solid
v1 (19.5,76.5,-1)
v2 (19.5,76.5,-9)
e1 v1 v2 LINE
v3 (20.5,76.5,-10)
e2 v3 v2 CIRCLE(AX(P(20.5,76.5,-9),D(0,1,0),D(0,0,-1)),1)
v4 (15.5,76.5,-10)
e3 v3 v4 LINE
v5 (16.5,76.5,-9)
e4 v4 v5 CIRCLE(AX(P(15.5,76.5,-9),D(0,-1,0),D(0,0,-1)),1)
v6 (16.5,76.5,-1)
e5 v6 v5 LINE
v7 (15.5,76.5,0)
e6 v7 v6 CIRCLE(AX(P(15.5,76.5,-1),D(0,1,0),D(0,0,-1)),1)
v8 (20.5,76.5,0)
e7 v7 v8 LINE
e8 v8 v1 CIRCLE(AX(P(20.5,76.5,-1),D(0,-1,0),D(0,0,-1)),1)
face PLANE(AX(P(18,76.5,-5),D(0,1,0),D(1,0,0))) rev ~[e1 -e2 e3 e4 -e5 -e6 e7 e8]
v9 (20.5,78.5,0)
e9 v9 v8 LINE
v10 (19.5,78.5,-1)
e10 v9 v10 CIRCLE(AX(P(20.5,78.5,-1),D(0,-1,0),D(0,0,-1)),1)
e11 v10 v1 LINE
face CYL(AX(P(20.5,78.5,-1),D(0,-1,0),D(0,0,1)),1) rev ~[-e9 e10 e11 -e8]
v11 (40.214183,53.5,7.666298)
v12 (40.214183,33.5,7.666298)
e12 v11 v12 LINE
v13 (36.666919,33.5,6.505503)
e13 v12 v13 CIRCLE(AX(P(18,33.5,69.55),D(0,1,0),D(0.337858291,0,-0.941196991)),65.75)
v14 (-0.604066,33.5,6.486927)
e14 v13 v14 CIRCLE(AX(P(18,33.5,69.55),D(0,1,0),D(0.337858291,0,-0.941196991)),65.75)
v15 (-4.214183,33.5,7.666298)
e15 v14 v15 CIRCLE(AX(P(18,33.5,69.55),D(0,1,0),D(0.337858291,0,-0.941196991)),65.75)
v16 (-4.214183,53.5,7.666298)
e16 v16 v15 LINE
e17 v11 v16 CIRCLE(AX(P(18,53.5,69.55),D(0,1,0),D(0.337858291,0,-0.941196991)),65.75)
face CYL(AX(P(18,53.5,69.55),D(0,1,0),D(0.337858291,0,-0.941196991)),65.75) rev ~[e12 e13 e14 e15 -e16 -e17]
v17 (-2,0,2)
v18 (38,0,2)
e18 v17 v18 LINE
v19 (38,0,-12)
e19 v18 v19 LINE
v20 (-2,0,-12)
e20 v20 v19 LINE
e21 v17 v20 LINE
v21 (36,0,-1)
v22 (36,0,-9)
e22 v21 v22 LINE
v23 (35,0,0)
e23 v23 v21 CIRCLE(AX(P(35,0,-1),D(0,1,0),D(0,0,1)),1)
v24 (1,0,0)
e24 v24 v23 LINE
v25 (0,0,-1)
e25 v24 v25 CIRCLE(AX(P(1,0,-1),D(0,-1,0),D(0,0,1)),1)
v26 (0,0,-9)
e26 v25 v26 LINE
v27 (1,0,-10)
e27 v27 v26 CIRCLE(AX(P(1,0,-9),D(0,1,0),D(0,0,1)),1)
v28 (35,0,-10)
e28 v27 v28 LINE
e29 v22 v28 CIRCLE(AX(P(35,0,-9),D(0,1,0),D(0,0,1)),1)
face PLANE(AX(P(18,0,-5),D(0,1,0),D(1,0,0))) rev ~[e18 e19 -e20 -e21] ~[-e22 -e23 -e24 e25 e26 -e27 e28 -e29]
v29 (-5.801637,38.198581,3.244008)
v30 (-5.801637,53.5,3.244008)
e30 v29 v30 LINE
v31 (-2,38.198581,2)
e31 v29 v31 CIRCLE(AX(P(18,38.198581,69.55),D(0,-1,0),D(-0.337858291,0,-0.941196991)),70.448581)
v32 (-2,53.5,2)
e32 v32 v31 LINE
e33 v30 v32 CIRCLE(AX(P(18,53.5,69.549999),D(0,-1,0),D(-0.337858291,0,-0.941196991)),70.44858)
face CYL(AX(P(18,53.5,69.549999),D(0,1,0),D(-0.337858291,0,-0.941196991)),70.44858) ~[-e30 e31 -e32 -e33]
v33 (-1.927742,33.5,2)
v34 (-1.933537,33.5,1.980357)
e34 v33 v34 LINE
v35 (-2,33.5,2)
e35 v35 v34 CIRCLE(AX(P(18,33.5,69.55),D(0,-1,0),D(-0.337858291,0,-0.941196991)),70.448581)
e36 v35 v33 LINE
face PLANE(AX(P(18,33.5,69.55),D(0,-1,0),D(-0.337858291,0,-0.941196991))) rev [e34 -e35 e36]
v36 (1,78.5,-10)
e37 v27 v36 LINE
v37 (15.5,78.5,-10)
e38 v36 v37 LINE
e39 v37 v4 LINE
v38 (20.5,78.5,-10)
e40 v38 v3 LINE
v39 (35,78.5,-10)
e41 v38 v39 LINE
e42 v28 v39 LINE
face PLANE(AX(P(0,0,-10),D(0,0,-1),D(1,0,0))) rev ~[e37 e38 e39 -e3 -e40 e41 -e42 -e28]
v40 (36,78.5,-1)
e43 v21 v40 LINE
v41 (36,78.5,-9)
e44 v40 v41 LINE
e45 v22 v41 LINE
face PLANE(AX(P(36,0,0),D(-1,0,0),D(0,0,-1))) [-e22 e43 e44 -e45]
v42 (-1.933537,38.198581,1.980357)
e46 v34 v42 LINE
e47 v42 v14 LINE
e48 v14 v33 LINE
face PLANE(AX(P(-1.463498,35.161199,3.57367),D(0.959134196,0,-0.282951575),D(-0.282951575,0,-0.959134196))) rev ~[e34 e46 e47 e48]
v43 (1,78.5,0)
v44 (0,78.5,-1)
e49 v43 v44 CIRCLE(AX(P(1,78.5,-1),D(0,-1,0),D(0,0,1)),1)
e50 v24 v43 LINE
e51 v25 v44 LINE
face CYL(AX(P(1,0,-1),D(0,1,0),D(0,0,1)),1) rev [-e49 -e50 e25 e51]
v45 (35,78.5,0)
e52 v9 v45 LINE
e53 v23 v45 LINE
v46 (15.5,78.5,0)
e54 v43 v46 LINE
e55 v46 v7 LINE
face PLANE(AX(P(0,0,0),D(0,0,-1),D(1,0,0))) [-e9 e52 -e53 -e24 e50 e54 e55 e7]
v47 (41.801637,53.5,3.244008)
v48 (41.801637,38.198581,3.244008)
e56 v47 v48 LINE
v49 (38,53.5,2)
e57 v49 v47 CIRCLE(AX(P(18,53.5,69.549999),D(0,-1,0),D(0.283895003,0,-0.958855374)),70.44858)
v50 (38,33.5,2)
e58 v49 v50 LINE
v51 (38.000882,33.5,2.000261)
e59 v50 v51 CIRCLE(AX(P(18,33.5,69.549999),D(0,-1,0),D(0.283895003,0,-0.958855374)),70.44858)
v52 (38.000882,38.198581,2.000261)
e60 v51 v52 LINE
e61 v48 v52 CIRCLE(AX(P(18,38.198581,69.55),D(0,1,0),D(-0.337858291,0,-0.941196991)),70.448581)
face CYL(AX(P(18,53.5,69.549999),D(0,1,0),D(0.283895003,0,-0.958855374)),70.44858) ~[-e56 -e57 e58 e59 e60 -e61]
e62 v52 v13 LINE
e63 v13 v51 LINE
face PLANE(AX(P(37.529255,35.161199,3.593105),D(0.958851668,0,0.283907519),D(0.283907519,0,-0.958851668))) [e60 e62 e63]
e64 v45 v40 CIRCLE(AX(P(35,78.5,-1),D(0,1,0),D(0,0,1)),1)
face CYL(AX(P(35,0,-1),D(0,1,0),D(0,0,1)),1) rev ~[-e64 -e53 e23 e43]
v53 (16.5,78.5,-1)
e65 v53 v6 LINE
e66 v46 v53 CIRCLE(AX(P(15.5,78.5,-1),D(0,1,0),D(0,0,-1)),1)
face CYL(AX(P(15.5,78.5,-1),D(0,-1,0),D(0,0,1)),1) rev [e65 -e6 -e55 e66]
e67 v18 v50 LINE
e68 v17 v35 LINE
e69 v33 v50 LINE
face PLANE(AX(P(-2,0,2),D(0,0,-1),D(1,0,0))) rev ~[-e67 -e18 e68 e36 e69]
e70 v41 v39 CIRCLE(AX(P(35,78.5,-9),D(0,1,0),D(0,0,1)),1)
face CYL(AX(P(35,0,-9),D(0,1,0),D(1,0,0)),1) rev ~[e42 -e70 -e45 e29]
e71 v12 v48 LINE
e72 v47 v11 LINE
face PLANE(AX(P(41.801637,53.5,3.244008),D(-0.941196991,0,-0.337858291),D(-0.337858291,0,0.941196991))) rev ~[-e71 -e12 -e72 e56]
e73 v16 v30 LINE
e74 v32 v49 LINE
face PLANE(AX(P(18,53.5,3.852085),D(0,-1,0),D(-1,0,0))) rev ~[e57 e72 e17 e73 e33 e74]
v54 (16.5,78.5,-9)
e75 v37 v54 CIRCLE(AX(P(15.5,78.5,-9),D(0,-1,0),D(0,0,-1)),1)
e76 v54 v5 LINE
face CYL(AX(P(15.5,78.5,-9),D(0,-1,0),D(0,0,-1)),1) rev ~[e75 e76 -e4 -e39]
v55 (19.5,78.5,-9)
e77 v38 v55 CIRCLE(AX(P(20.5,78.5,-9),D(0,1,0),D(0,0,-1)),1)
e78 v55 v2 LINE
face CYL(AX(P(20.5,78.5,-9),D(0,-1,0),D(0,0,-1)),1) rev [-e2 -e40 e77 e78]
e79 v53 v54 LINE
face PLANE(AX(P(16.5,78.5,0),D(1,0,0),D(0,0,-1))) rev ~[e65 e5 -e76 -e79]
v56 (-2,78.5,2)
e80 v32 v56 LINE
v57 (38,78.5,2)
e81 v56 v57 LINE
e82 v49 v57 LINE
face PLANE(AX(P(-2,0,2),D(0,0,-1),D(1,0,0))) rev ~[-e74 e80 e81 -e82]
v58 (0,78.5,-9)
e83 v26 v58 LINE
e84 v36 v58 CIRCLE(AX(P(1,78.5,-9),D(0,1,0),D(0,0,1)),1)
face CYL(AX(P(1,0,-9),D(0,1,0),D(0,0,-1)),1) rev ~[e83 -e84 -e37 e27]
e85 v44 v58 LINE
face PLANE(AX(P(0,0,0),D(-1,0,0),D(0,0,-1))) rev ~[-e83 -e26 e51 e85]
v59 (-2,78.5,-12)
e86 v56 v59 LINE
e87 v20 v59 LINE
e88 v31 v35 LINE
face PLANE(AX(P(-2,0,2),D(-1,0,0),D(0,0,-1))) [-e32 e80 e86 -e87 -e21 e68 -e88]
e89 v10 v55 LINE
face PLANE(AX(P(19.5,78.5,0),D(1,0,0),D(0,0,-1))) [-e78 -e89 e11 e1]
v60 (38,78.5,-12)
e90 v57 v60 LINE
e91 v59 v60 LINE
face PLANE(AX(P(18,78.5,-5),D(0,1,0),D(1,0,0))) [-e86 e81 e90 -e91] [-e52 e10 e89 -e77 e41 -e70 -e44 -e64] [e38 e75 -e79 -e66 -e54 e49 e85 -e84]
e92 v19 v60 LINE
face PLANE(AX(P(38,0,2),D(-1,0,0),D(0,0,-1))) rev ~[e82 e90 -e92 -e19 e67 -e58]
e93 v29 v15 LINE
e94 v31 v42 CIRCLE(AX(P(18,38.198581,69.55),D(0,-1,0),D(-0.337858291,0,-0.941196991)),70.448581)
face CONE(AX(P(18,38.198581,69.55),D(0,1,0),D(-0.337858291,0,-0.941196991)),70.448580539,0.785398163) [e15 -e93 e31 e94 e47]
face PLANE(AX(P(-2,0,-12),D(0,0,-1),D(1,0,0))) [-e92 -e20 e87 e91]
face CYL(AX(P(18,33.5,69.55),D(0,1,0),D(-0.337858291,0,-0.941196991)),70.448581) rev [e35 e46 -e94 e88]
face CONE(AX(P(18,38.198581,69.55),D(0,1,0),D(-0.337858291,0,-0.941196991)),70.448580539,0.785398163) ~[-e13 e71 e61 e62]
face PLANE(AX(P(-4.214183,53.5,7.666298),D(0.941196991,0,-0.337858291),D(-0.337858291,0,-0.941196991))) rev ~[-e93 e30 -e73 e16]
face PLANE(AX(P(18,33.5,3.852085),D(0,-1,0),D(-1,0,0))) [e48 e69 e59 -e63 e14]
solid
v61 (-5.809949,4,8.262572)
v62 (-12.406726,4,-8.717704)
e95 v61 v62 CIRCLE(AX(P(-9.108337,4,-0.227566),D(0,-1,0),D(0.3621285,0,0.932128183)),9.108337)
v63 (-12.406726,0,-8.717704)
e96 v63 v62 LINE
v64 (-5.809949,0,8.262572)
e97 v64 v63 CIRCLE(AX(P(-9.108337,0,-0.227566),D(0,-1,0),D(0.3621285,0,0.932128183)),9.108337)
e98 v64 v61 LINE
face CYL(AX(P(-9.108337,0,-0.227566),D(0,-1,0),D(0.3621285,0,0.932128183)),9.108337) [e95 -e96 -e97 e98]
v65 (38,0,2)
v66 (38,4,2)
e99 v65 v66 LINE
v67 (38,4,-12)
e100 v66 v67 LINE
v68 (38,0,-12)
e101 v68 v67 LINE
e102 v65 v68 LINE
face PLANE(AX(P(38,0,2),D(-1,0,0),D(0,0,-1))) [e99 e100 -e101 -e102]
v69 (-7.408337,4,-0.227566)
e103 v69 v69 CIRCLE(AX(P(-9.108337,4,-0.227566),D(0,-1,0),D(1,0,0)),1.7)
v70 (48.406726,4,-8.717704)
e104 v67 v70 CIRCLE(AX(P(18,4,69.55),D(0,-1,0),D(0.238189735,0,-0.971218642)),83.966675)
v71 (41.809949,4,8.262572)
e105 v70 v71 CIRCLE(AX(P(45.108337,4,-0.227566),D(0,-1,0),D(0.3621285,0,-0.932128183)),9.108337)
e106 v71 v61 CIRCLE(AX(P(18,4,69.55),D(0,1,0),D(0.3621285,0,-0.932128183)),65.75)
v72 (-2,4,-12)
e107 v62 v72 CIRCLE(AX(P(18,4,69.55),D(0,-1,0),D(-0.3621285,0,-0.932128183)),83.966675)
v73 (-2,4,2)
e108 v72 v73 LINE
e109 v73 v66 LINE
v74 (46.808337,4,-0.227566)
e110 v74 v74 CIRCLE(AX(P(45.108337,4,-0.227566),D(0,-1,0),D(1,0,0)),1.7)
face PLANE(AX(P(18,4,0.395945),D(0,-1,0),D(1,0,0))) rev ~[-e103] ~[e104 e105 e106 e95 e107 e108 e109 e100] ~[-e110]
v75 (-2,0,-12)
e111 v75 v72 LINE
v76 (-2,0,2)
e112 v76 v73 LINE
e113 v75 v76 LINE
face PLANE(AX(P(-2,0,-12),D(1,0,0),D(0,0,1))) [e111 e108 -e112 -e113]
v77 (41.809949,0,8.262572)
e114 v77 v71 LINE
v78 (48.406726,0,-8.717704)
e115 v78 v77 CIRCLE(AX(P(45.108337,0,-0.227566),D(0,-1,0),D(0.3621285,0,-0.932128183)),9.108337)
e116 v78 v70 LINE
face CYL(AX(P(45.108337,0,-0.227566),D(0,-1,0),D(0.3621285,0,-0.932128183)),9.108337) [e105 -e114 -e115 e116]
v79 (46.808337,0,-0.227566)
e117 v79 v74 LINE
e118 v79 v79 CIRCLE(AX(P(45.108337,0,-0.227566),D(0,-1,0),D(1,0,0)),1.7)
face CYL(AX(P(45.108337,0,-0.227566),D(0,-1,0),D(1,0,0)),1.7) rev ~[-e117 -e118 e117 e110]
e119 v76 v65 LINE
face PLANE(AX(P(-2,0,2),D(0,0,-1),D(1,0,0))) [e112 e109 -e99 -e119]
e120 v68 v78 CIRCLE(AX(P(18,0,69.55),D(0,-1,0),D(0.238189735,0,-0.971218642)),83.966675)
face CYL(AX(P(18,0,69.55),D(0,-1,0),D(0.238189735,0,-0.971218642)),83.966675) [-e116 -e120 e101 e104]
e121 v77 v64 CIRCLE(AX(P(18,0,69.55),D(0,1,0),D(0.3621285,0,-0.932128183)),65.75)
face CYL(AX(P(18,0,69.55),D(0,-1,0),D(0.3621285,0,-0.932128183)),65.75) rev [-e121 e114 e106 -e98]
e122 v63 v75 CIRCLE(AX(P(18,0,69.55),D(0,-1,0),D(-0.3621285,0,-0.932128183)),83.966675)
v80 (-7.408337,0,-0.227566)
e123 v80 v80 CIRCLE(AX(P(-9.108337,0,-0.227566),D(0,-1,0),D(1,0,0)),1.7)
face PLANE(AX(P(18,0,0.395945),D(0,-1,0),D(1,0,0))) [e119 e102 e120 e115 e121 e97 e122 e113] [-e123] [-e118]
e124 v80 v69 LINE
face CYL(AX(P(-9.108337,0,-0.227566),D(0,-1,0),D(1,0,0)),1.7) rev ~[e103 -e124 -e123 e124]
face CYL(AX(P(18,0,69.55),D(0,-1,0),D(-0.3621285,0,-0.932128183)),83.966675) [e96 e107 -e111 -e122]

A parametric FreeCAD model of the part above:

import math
import FreeCAD as App
import Part
import Sketcher
Q = App.Units.Quantity


def edges_at(feature, points):
    """Names of the edges that pass closest to the given points."""
    edges = feature.Shape.Edges
    near = lambda p: min(range(len(edges)), key=lambda i: edges[i].distToShape(Part.Vertex(*p))[0])
    return sorted({f"Edge{near(p) + 1}" for p in points})


def add_polygon(sketch, points):
    """Adds a closed chain of lines whose ends are joined by coincident constraints."""
    first, n = sketch.GeometryCount, len(points)
    for a, b in zip(points, points[1:] + points[:1]):
        sketch.addGeometry(Part.LineSegment(App.Vector(*a, 0), App.Vector(*b, 0)), False)
    for i in range(n):
        sketch.addConstraint(Sketcher.Constraint("Coincident", first + i, 2, first + (i + 1) % n, 1))

doc = App.newDocument("Part")
body = doc.addObject("PartDesign::Body", "Body")

# Sketch on XZ plane
sketch1 = doc.addObject("Sketcher::SketchObject", "Sketch")
body.addObject(sketch1)
sketch1.AttachmentSupport = (doc.XZ_Plane, [""])
sketch1.MapMode = "FlatFace"
add_polygon(sketch1, [(-2, -12), (-2, 2), (38, 2), (38, -12)])  # lines 0-3
add_polygon(sketch1, [(36, 0), (0, 0), (0, -10), (36, -10)])  # lines 4-7
sketch1.addConstraint(Sketcher.Constraint("Vertical", 0))
sketch1.addConstraint(Sketcher.Constraint("Horizontal", 1))
sketch1.addConstraint(Sketcher.Constraint("Vertical", 2))
sketch1.addConstraint(Sketcher.Constraint("Horizontal", 3))
sketch1.addConstraint(Sketcher.Constraint("Horizontal", 4))
sketch1.addConstraint(Sketcher.Constraint("Vertical", 5))
sketch1.addConstraint(Sketcher.Constraint("Horizontal", 6))
sketch1.addConstraint(Sketcher.Constraint("Vertical", 7))
sketch1.addConstraint(Sketcher.Constraint("Coincident", 4, 2, -1, 1))
sketch1.addConstraint(Sketcher.Constraint("DistanceX", 1, 1, 1, 2, Q("40 mm")))
sketch1.addConstraint(Sketcher.Constraint("DistanceX", 4, 2, 4, 1, Q("36 mm")))
sketch1.addConstraint(Sketcher.Constraint("DistanceY", 0, 1, 0, 2, Q("14 mm")))
sketch1.addConstraint(Sketcher.Constraint("DistanceY", 5, 2, 5, 1, Q("10 mm")))
sketch1.addConstraint(Sketcher.Constraint("DistanceX", 0, 2, -1, 1, Q("2 mm")))
sketch1.addConstraint(Sketcher.Constraint("DistanceY", -1, 1, 0, 2, Q("2 mm")))
pad1 = doc.addObject("PartDesign::Pad", "Pad")
body.addObject(pad1)
pad1.Profile = sketch1
pad1.Length = 78.5
pad1.Reversed = True

# Sketch on XZ plane
sketch2 = doc.addObject("Sketcher::SketchObject", "Sketch001")
body.addObject(sketch2)
sketch2.AttachmentSupport = (doc.XZ_Plane, [""])
sketch2.MapMode = "FlatFace"
sketch2.AttachmentOffset = App.Placement(App.Vector(0, 0, -78.5), App.Rotation())
add_polygon(sketch2, [(16.5, -10), (16.5, 0), (19.5, 0), (19.5, -10)])  # lines 0-3
sketch2.addConstraint(Sketcher.Constraint("Vertical", 0))
sketch2.addConstraint(Sketcher.Constraint("Horizontal", 1))
sketch2.addConstraint(Sketcher.Constraint("Vertical", 2))
sketch2.addConstraint(Sketcher.Constraint("Horizontal", 3))
sketch2.addConstraint(Sketcher.Constraint("PointOnObject", 0, 2, -1))
sketch2.addConstraint(Sketcher.Constraint("DistanceX", 1, 1, 1, 2, Q("3 mm")))
sketch2.addConstraint(Sketcher.Constraint("DistanceY", 0, 1, 0, 2, Q("10 mm")))
sketch2.addConstraint(Sketcher.Constraint("DistanceX", -1, 1, 0, 2, Q("16.5 mm")))
pad2 = doc.addObject("PartDesign::Pad", "Pad001")
body.addObject(pad2)
pad2.Profile = sketch2
pad2.Length = 2

# Sketch on XZ plane
sketch3 = doc.addObject("Sketcher::SketchObject", "Sketch002")
body.addObject(sketch3)
sketch3.AttachmentSupport = (doc.XZ_Plane, [""])
sketch3.MapMode = "FlatFace"
sketch3.AttachmentOffset = App.Placement(App.Vector(0, 0, -53.5), App.Rotation())
sketch3.addGeometry(Part.LineSegment(App.Vector(-5.801637, 3.244008, 0), App.Vector(-4.214183, 7.666298, 0)), False)
sketch3.addGeometry(Part.ArcOfCircle(Part.Circle(App.Vector(18, 69.55, 0), App.Vector(0, 0, 1), 65.75), math.radians(-109.746443), math.radians(-70.253557)), False)
sketch3.addGeometry(Part.LineSegment(App.Vector(40.214183, 7.666298, 0), App.Vector(41.801637, 3.244008, 0)), False)
sketch3.addGeometry(Part.ArcOfCircle(Part.Circle(App.Vector(18, 69.549999, 0), App.Vector(0, 0, 1), 70.44858), math.radians(-73.507191), math.radians(-70.253557)), False)
sketch3.addGeometry(Part.LineSegment(App.Vector(38, 2, 0), App.Vector(-2, 2, 0)), False)
sketch3.addGeometry(Part.ArcOfCircle(Part.Circle(App.Vector(18, 69.549999, 0), App.Vector(0, 0, 1), 70.44858), math.radians(-109.746443), math.radians(-106.492809)), False)
sketch3.addConstraint(Sketcher.Constraint("Coincident", 0, 2, 1, 1))
sketch3.addConstraint(Sketcher.Constraint("Coincident", 1, 2, 2, 1))
sketch3.addConstraint(Sketcher.Constraint("Coincident", 2, 2, 3, 2))
sketch3.addConstraint(Sketcher.Constraint("Coincident", 3, 1, 4, 1))
sketch3.addConstraint(Sketcher.Constraint("Coincident", 4, 2, 5, 2))
sketch3.addConstraint(Sketcher.Constraint("Coincident", 5, 1, 0, 1))
sketch3.addConstraint(Sketcher.Constraint("Horizontal", 4))
sketch3.addConstraint(Sketcher.Constraint("Coincident", 3, 3, 1, 3))
sketch3.addConstraint(Sketcher.Constraint("Coincident", 5, 3, 1, 3))
sketch3.addConstraint(Sketcher.Constraint("Equal", 3, 5))
sketch3.addConstraint(Sketcher.Constraint("Horizontal", 0, 2, 1, 2))
sketch3.addConstraint(Sketcher.Constraint("Horizontal", 2, 2, 5, 1))
sketch3.addConstraint(Sketcher.Constraint("DistanceX", 4, 2, 4, 1, Q("40 mm")))
sketch3.addConstraint(Sketcher.Constraint("Radius", 1, Q("65.75 mm")))
sketch3.addConstraint(Sketcher.Constraint("DistanceX", -1, 1, 1, 3, Q("18 mm")))
sketch3.addConstraint(Sketcher.Constraint("DistanceY", -1, 1, 3, 1, Q("2 mm")))
sketch3.addConstraint(Sketcher.Constraint("DistanceY", -1, 1, 1, 3, Q("69.55 mm")))
sketch3.addConstraint(Sketcher.Constraint("DistanceY", 0, 2, 5, 3, Q("61.883701 mm")))
sketch3.addConstraint(Sketcher.Constraint("DistanceY", -1, 1, 2, 2, Q("3.244008 mm")))
pad3 = doc.addObject("PartDesign::Pad", "Pad002")
body.addObject(pad3)
pad3.Profile = sketch3
pad3.Length = 20

# Sketch on an angled plane
sketch4 = doc.addObject("Sketcher::SketchObject", "Sketch003")
body.addObject(sketch4)
sketch4.Placement = App.Placement(App.Vector(-6.170956, 0, 2.215167), App.Rotation(App.Vector(0.337858291, 0, 0.941196991), App.Vector(0, 1.000000001, 0), App.Vector(-0.941196991, 0, 0.337858291), "ZXY"))
add_polygon(sketch4, [(5.7917, 33.5), (1.093119, 38.198581), (1.093119, 33.5)])  # lines 0-2
sketch4.addGeometry(Part.LineSegment(App.Vector(71.5417, 33.5, 0), App.Vector(71.5417, 38.198581, 0)), True)  # axis
sketch4.addConstraint(Sketcher.Constraint("Vertical", 1))
sketch4.addConstraint(Sketcher.Constraint("Horizontal", 2))
sketch4.addConstraint(Sketcher.Constraint("Vertical", 3))
sketch4.addConstraint(Sketcher.Constraint("Horizontal", 2, 2, 3, 1))
sketch4.addConstraint(Sketcher.Constraint("Horizontal", 0, 2, 3, 2))
sketch4.addConstraint(Sketcher.Constraint("Equal", 2, 1))
sketch4.addConstraint(Sketcher.Constraint("DistanceY", -1, 1, 1, 2, Q("33.5 mm")))
sketch4.addConstraint(Sketcher.Constraint("DistanceX", 2, 2, 3, 1, Q("65.75 mm")))
sketch4.addConstraint(Sketcher.Constraint("DistanceX", 2, 1, 2, 2, Q("4.698581 mm")))
sketch4.addConstraint(Sketcher.Constraint("DistanceX", -1, 1, 2, 2, Q("5.7917 mm")))
groove = doc.addObject("PartDesign::Groove", "Groove")
body.addObject(groove)
groove.Profile = sketch4
groove.ReferenceAxis = (sketch4, ["Axis0"])
groove.Angle = 323.76

# Sketch on an angled plane
sketch5 = doc.addObject("Sketcher::SketchObject", "Sketch004")
body.addObject(sketch5)
sketch5.Placement = App.Placement(App.Vector(-6.170956, 0, 2.215167), App.Rotation(App.Vector(0.337858291, 0, 0.941196991), App.Vector(0, 1.000000001, 0), App.Vector(-0.941196991, 0, 0.337858291), "ZXY"))
add_polygon(sketch5, [(5.7917, 33.5), (1.093119, 38.198581), (1.093119, 33.5)])  # lines 0-2
sketch5.addGeometry(Part.LineSegment(App.Vector(71.5417, 38.198581, 0), App.Vector(71.5417, 33.5, 0)), True)  # axis
sketch5.addConstraint(Sketcher.Constraint("Vertical", 1))
sketch5.addConstraint(Sketcher.Constraint("Horizontal", 2))
sketch5.addConstraint(Sketcher.Constraint("Vertical", 3))
sketch5.addConstraint(Sketcher.Constraint("Horizontal", 0, 2, 3, 1))
sketch5.addConstraint(Sketcher.Constraint("Horizontal", 2, 2, 3, 2))
sketch5.addConstraint(Sketcher.Constraint("Equal", 2, 1))
sketch5.addConstraint(Sketcher.Constraint("DistanceY", -1, 1, 1, 2, Q("33.5 mm")))
sketch5.addConstraint(Sketcher.Constraint("DistanceX", 2, 2, 3, 1, Q("65.75 mm")))
sketch5.addConstraint(Sketcher.Constraint("DistanceX", 2, 1, 2, 2, Q("4.698581 mm")))
sketch5.addConstraint(Sketcher.Constraint("DistanceX", -1, 1, 2, 2, Q("5.7917 mm")))
groove2 = doc.addObject("PartDesign::Groove", "Groove001")
body.addObject(groove2)
groove2.Profile = sketch5
groove2.ReferenceAxis = (sketch5, ["Axis0"])
groove2.Angle = 3.31
doc.recompute()

fillet = doc.addObject("PartDesign::Fillet", "Fillet")
body.addObject(fillet)
fillet.Base = (groove2, edges_at(groove2, [
    (0, 39.25, -10),
    (0, 39.25, 0),
    (36, 39.25, 0),
    (36, 39.25, -10),
    (19.5, 77.5, -10),
    (19.5, 77.5, 0),
    (16.5, 77.5, 0),
    (16.5, 77.5, -10),
]))
fillet.Radius = 1
body2 = doc.addObject("PartDesign::Body", "Body001")

# Sketch on XZ plane
sketch6 = doc.addObject("Sketcher::SketchObject", "Sketch005")
body2.addObject(sketch6)
sketch6.AttachmentSupport = (doc.getObject("XZ_Plane001"), [""])
sketch6.MapMode = "FlatFace"
sketch6.addGeometry(Part.ArcOfCircle(Part.Circle(App.Vector(18, 69.55, 0), App.Vector(0, 0, 1), 83.966675), math.radians(-76.220278), math.radians(-68.769028)), False)
sketch6.addGeometry(Part.ArcOfCircle(Part.Circle(App.Vector(45.108337, -0.227566, 0), App.Vector(0, 0, 1), 9.108337), math.radians(-68.769028), math.radians(111.230972)), False)
sketch6.addGeometry(Part.ArcOfCircle(Part.Circle(App.Vector(18, 69.55, 0), App.Vector(0, 0, 1), 65.75), math.radians(-111.230972), math.radians(-68.769028)), False)
sketch6.addGeometry(Part.ArcOfCircle(Part.Circle(App.Vector(-9.108337, -0.227566, 0), App.Vector(0, 0, 1), 9.108337), math.radians(68.769028), math.radians(248.769028)), False)
sketch6.addGeometry(Part.ArcOfCircle(Part.Circle(App.Vector(18, 69.55, 0), App.Vector(0, 0, 1), 83.966675), math.radians(-111.230972), math.radians(-103.779722)), False)
sketch6.addGeometry(Part.LineSegment(App.Vector(-2, -12, 0), App.Vector(-2, 2, 0)), False)
sketch6.addGeometry(Part.LineSegment(App.Vector(-2, 2, 0), App.Vector(38, 2, 0)), False)
sketch6.addGeometry(Part.LineSegment(App.Vector(38, 2, 0), App.Vector(38, -12, 0)), False)
sketch6.addGeometry(Part.Circle(App.Vector(-9.108337, -0.227566, 0), App.Vector(0, 0, 1), 1.7), False)
sketch6.addGeometry(Part.Circle(App.Vector(45.108337, -0.227566, 0), App.Vector(0, 0, 1), 1.7), False)
sketch6.addConstraint(Sketcher.Constraint("Tangent", 0, 2, 1, 1))
sketch6.addConstraint(Sketcher.Constraint("Tangent", 1, 2, 2, 2))
sketch6.addConstraint(Sketcher.Constraint("Tangent", 2, 1, 3, 1))
sketch6.addConstraint(Sketcher.Constraint("Tangent", 3, 2, 4, 1))
sketch6.addConstraint(Sketcher.Constraint("Coincident", 4, 2, 5, 1))
sketch6.addConstraint(Sketcher.Constraint("Coincident", 5, 2, 6, 1))
sketch6.addConstraint(Sketcher.Constraint("Coincident", 6, 2, 7, 1))
sketch6.addConstraint(Sketcher.Constraint("Coincident", 7, 2, 0, 1))
sketch6.addConstraint(Sketcher.Constraint("Vertical", 5))
sketch6.addConstraint(Sketcher.Constraint("Horizontal", 6))
sketch6.addConstraint(Sketcher.Constraint("Vertical", 7))
sketch6.addConstraint(Sketcher.Constraint("Coincident", 2, 3, 0, 3))
sketch6.addConstraint(Sketcher.Constraint("Coincident", 4, 3, 0, 3))
sketch6.addConstraint(Sketcher.Constraint("Coincident", 8, 3, 3, 3))
sketch6.addConstraint(Sketcher.Constraint("Coincident", 9, 3, 1, 3))
sketch6.addConstraint(Sketcher.Constraint("Equal", 1, 3))
sketch6.addConstraint(Sketcher.Constraint("Equal", 8, 9))
sketch6.addConstraint(Sketcher.Constraint("Horizontal", 1, 3, 3, 3))
sketch6.addConstraint(Sketcher.Constraint("Horizontal", 4, 2, 7, 2))
sketch6.addConstraint(Sketcher.Constraint("Diameter", 8, Q("3.4 mm")))
sketch6.addConstraint(Sketcher.Constraint("DistanceX", 6, 1, 6, 2, Q("40 mm")))
sketch6.addConstraint(Sketcher.Constraint("DistanceY", 5, 1, 5, 2, Q("14 mm")))
sketch6.addConstraint(Sketcher.Constraint("Radius", 2, Q("65.75 mm")))
sketch6.addConstraint(Sketcher.Constraint("DistanceX", -1, 1, 0, 3, Q("18 mm")))
sketch6.addConstraint(Sketcher.Constraint("DistanceY", 4, 2, -1, 1, Q("12 mm")))
sketch6.addConstraint(Sketcher.Constraint("DistanceY", -1, 1, 0, 3, Q("69.55 mm")))
sketch6.addConstraint(Sketcher.Constraint("DistanceX", -1, 1, 1, 2, Q("41.809949 mm")))
pad4 = doc.addObject("PartDesign::Pad", "Pad003")
body2.addObject(pad4)
pad4.Profile = sketch6
pad4.Length = 4
pad4.Reversed = True

doc.recompute()
